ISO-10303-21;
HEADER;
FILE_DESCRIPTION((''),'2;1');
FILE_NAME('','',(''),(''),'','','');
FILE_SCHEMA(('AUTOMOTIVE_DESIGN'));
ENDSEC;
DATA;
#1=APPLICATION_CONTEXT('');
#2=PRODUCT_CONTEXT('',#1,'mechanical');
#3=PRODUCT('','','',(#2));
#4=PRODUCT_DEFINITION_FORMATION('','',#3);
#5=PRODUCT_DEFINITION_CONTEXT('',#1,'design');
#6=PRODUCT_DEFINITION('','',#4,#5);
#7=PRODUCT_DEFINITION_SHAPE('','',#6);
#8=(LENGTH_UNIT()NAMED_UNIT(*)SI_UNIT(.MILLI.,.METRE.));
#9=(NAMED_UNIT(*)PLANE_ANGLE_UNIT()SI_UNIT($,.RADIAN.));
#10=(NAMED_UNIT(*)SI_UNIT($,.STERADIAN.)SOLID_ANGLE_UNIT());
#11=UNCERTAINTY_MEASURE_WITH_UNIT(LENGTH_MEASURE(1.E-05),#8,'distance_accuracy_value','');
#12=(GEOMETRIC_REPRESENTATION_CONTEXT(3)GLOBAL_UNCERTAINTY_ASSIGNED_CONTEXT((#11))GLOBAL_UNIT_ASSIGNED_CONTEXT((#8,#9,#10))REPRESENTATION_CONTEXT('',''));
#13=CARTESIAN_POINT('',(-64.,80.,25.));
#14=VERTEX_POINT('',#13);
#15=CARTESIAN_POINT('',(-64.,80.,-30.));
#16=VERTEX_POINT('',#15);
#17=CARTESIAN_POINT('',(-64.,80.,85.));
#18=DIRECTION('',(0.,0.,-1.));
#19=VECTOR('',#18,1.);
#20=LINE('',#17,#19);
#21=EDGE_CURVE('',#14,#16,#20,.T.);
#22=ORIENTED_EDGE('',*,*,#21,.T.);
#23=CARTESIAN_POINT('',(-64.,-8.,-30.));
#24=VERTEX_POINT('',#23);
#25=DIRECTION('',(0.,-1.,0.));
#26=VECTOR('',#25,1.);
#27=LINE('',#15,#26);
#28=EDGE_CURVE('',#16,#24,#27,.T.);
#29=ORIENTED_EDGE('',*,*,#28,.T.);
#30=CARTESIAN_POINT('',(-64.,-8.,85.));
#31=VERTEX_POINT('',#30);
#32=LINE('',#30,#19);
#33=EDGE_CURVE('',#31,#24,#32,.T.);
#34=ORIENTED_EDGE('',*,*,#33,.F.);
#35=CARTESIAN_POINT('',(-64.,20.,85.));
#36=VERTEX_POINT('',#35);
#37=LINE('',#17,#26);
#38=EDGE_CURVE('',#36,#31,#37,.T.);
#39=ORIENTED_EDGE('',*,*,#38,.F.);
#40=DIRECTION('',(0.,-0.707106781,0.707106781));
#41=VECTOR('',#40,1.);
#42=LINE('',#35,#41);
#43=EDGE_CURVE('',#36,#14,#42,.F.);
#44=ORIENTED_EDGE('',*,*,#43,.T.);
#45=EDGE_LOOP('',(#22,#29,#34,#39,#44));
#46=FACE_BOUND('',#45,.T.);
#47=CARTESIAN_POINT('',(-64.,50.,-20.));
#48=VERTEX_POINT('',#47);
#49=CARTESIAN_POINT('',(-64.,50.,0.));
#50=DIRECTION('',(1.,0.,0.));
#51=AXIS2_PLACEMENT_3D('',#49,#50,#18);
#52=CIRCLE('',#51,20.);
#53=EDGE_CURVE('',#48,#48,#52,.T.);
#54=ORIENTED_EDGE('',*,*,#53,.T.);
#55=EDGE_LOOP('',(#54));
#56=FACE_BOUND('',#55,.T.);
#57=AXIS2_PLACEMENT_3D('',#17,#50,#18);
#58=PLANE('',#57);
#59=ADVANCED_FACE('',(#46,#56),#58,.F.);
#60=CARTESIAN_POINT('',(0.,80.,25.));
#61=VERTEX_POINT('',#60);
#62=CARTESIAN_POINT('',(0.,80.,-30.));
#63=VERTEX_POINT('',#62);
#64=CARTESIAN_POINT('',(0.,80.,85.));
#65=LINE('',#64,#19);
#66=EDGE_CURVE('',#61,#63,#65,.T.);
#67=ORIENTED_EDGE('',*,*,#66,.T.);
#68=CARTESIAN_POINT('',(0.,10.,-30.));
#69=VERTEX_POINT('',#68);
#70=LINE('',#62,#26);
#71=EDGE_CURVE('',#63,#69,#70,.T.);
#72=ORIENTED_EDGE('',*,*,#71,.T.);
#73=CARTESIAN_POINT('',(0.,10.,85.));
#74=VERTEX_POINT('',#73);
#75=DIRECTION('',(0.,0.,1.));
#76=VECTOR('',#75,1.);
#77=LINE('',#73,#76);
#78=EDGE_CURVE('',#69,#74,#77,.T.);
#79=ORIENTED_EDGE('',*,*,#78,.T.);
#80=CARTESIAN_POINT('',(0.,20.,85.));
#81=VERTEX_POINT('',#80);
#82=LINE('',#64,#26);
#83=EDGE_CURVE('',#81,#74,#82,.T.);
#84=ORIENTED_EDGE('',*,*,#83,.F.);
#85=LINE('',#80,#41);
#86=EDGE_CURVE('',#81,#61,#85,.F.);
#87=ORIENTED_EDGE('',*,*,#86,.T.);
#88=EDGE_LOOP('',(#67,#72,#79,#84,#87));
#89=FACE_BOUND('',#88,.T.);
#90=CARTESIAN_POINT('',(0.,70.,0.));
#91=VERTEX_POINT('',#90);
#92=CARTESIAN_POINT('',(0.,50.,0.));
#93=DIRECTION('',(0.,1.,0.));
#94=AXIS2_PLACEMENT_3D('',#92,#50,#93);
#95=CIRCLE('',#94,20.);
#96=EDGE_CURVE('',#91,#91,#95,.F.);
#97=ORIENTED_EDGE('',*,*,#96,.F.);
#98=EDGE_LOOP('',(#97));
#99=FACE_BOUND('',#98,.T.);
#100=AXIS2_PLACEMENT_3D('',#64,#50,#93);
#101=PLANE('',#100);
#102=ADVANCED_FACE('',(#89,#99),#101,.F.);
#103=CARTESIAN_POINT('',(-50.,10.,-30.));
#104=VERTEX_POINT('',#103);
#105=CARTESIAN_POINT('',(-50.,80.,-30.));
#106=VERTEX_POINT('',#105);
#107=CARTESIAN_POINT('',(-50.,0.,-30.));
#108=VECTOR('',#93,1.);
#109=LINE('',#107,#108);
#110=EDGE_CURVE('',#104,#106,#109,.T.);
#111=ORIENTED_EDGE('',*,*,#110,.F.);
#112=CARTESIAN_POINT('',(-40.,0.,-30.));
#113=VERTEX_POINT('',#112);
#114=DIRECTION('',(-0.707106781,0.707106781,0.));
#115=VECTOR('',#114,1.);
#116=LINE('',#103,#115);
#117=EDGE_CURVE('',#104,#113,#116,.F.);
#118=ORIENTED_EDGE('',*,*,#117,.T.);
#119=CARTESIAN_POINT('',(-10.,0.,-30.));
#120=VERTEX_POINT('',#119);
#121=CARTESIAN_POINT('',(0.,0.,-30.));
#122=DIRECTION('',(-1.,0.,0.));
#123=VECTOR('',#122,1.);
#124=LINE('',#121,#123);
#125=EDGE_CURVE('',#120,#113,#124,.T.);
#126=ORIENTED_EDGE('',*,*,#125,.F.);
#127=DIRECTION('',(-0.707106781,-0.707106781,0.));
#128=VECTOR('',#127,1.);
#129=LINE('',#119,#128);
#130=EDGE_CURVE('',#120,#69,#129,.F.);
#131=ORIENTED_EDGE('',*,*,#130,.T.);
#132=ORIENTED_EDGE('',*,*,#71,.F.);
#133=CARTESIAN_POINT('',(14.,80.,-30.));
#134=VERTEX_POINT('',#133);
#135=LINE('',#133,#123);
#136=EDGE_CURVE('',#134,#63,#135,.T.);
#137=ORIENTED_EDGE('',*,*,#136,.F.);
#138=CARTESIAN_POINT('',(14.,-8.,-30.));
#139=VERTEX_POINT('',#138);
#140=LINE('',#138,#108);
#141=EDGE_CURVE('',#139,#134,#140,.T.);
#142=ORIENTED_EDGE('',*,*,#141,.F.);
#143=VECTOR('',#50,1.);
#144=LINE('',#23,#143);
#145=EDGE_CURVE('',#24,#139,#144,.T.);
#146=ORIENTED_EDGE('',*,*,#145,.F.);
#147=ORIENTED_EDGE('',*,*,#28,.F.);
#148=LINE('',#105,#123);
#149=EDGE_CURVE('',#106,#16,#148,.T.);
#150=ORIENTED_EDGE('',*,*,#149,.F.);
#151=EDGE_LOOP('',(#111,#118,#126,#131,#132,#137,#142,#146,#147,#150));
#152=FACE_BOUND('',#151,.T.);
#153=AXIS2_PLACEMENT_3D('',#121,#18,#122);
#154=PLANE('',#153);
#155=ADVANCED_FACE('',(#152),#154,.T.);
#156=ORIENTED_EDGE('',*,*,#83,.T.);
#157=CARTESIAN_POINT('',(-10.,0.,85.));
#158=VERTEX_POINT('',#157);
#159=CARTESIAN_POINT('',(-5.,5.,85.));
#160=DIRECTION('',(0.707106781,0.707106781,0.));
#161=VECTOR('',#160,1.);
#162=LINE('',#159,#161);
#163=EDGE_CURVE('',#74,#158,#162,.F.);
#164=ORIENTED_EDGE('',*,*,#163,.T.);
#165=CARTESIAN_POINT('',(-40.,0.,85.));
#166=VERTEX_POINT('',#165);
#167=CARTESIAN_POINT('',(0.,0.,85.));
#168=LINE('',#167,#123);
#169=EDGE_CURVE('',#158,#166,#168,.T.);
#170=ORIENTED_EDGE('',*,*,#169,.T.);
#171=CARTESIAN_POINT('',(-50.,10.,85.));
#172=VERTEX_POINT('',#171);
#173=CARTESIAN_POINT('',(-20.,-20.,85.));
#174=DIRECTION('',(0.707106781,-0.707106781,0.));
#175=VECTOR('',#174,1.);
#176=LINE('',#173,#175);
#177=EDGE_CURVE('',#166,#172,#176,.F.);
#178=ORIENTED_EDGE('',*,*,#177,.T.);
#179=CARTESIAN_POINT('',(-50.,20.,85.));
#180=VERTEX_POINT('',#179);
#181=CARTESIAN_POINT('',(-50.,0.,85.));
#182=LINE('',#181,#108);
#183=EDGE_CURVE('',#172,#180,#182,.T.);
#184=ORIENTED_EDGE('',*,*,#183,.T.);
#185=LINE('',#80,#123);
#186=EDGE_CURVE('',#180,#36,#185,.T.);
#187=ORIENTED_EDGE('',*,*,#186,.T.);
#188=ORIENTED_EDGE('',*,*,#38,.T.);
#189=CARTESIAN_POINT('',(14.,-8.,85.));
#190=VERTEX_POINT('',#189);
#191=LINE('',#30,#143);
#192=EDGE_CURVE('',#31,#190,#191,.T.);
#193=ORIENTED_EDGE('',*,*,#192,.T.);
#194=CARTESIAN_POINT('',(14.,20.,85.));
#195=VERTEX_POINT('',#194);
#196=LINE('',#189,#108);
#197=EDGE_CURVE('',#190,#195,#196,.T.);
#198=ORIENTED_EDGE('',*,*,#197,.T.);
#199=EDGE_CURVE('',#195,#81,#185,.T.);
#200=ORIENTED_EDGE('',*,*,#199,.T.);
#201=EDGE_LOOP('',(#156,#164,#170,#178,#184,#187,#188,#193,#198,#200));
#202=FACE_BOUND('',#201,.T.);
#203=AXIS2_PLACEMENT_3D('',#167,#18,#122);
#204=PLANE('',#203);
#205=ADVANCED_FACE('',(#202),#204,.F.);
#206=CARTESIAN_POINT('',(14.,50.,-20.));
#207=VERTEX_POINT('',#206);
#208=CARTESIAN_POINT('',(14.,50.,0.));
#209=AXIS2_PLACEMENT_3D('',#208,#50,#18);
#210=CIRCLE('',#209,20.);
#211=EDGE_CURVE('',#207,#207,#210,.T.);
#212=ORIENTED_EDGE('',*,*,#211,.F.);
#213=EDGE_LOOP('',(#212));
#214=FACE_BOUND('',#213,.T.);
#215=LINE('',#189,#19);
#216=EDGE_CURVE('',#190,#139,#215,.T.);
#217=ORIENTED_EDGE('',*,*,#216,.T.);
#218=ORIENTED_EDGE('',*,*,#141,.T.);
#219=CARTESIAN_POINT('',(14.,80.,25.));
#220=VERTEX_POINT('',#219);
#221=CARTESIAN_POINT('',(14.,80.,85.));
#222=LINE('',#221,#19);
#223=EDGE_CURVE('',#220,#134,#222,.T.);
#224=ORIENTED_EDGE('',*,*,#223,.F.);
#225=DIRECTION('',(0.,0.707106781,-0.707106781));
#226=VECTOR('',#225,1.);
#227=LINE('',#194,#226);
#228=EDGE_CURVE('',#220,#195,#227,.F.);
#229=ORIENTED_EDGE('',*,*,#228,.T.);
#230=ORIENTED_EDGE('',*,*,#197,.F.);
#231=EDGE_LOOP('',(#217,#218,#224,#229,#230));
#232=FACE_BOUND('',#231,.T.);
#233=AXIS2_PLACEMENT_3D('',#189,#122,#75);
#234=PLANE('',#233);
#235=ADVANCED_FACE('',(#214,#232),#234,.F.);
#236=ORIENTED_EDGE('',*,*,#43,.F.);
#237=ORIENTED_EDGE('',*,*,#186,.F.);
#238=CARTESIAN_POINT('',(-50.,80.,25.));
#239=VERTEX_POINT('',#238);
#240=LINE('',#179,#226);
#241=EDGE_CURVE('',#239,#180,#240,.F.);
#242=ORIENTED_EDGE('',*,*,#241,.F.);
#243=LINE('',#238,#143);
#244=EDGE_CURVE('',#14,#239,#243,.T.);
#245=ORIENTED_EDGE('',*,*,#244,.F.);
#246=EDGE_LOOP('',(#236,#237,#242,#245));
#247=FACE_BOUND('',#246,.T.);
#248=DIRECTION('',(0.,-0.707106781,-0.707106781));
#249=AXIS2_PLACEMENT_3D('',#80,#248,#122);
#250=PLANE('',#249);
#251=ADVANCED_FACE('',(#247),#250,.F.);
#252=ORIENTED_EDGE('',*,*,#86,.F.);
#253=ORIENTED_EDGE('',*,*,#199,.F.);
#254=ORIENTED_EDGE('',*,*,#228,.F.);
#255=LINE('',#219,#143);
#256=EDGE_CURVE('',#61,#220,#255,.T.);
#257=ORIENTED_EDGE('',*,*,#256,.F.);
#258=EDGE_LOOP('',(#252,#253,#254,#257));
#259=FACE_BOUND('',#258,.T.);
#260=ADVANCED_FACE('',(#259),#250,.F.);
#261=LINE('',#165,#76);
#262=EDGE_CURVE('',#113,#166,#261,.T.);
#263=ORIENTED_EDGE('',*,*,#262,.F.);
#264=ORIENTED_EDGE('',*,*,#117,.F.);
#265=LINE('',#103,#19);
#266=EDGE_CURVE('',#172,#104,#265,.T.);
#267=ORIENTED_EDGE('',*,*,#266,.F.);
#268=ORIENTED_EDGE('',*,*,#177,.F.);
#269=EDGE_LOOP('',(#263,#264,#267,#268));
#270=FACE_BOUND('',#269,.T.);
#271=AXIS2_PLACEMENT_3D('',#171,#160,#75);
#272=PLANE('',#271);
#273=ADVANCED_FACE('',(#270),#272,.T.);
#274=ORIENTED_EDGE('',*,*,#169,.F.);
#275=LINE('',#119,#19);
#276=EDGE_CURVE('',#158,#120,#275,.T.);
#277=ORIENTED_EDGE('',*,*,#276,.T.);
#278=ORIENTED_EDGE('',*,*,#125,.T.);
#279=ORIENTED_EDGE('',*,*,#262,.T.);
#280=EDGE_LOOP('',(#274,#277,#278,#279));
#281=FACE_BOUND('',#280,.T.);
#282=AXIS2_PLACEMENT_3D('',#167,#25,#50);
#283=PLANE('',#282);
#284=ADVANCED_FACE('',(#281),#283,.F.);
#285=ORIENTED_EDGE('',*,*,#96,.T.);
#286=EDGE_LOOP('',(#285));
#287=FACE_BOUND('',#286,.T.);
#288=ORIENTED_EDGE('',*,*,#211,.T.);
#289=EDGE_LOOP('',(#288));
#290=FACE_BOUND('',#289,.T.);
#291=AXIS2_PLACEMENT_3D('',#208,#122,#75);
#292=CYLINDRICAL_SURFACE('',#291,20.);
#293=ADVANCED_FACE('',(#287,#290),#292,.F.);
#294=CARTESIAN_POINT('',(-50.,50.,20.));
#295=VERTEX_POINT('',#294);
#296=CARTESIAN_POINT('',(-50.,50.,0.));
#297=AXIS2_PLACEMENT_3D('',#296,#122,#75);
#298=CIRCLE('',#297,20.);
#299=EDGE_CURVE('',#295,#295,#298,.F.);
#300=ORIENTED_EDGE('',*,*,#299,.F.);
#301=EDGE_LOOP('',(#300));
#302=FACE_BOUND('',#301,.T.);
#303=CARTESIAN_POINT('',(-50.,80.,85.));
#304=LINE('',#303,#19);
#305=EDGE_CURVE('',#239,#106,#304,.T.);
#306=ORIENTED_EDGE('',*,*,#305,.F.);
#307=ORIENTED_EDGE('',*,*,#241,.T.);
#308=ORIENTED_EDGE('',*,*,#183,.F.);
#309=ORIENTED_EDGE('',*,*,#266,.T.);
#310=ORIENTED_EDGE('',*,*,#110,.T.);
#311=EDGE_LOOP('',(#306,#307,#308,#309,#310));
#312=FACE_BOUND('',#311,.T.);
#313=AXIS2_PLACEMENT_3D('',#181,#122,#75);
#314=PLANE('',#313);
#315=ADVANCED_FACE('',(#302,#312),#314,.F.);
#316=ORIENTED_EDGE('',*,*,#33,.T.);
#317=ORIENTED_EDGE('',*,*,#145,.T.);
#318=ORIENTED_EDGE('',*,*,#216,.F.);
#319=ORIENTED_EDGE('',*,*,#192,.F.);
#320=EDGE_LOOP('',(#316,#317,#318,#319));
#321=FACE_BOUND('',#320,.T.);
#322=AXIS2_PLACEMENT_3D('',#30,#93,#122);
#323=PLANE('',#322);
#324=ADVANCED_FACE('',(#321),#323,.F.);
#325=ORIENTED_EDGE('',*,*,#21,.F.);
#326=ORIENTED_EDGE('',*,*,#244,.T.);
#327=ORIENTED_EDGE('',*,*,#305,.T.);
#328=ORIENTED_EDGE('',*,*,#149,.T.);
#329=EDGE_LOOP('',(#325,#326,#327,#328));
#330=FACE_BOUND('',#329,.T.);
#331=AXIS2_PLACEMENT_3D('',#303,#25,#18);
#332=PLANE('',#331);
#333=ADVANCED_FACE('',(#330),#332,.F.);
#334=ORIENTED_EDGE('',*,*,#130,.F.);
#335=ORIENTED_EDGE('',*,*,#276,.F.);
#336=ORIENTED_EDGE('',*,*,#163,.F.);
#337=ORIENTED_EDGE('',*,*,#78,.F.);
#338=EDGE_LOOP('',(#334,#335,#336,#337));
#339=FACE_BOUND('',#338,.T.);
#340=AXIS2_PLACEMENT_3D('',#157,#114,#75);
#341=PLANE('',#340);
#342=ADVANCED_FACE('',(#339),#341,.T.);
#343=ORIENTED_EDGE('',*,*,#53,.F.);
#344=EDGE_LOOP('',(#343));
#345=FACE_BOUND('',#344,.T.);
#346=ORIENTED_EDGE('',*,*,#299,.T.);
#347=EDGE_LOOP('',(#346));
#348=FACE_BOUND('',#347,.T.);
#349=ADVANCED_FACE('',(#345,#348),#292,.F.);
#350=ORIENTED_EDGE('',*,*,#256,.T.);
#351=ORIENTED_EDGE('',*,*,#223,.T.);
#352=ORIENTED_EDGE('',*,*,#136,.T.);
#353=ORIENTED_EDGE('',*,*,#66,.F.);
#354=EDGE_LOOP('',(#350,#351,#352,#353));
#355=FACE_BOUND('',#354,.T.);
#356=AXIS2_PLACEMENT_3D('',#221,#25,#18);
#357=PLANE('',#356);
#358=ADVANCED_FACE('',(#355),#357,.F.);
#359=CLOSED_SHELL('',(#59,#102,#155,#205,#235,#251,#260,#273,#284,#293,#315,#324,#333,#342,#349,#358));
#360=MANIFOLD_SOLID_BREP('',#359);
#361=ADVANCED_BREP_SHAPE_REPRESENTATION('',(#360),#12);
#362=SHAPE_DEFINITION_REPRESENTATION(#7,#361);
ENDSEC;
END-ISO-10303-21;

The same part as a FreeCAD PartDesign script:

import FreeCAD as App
import Part
import Sketcher


def edges_at(feature, points):
    """Names of the edges that pass closest to the given points."""
    edges = feature.Shape.Edges
    near = lambda p: min(range(len(edges)), key=lambda i: edges[i].distToShape(Part.Vertex(*p))[0])
    return sorted({f"Edge{near(p) + 1}" for p in points})

doc = App.newDocument("Part")
body = doc.addObject("PartDesign::Body", "Body")

sketch1 = doc.addObject("Sketcher::SketchObject", "Sketch")
body.addObject(sketch1)
sketch1.AttachmentSupport = (doc.XY_Plane, [""])
sketch1.MapMode = "FlatFace"
sketch1.addGeometry([
    Part.LineSegment(App.Vector(0, 0, 0), App.Vector(-50, 0, 0)),
    Part.LineSegment(App.Vector(-50, 0, 0), App.Vector(-50, 80, 0)),
    Part.LineSegment(App.Vector(-50, 80, 0), App.Vector(-64, 80, 0)),
    Part.LineSegment(App.Vector(-64, 80, 0), App.Vector(-64, -8, 0)),
    Part.LineSegment(App.Vector(-64, -8, 0), App.Vector(14, -8, 0)),
    Part.LineSegment(App.Vector(14, -8, 0), App.Vector(14, 80, 0)),
    Part.LineSegment(App.Vector(14, 80, 0), App.Vector(0, 80, 0)),
    Part.LineSegment(App.Vector(0, 80, 0), App.Vector(0, 0, 0)),
], False)
sketch1.addConstraint([
    Sketcher.Constraint("Coincident", 0, 2, 1, 1),
    Sketcher.Constraint("Coincident", 1, 2, 2, 1),
    Sketcher.Constraint("Coincident", 2, 2, 3, 1),
    Sketcher.Constraint("Coincident", 3, 2, 4, 1),
    Sketcher.Constraint("Coincident", 4, 2, 5, 1),
    Sketcher.Constraint("Coincident", 5, 2, 6, 1),
    Sketcher.Constraint("Coincident", 6, 2, 7, 1),
    Sketcher.Constraint("Coincident", 7, 2, 0, 1),
    Sketcher.Constraint("Horizontal", 0),
    Sketcher.Constraint("Vertical", 1),
    Sketcher.Constraint("Horizontal", 2),
    Sketcher.Constraint("Vertical", 3),
    Sketcher.Constraint("Horizontal", 4),
    Sketcher.Constraint("Vertical", 5),
    Sketcher.Constraint("Horizontal", 6),
    Sketcher.Constraint("Vertical", 7),
    Sketcher.Constraint("Coincident", 7, 2, -1, 1),
    Sketcher.Constraint("Horizontal", 2, 2, 5, 2),
    Sketcher.Constraint("Equal", 2, 6),
    Sketcher.Constraint("DistanceX", 0, 2, 0, 1, 50.0),
    Sketcher.Constraint("DistanceX", 2, 2, 2, 1, 14.0),
    Sketcher.Constraint("DistanceY", 1, 1, 1, 2, 80.0),
    Sketcher.Constraint("DistanceY", 3, 2, 3, 1, 88.0),
])
pad1 = doc.addObject("PartDesign::Pad", "Pad")
body.addObject(pad1)
pad1.Profile = sketch1
pad1.Type = "TwoLengths"
pad1.Length = 85
pad1.Length2 = 30

sketch2 = doc.addObject("Sketcher::SketchObject", "Sketch001")
body.addObject(sketch2)
sketch2.AttachmentSupport = (doc.YZ_Plane, [""])
sketch2.MapMode = "FlatFace"
sketch2.addGeometry(Part.Circle(App.Vector(50, 0, 0), App.Vector(0, 0, 1), 20), False)
sketch2.addConstraint([
    Sketcher.Constraint("PointOnObject", 0, 3, -1),
    Sketcher.Constraint("Diameter", 0, 40.0),
    Sketcher.Constraint("DistanceX", -1, 1, 0, 3, 50.0),
])
pocket1 = doc.addObject("PartDesign::Pocket", "Pocket")
body.addObject(pocket1)
pocket1.Profile = sketch2
pocket1.Type = "ThroughAll"
pocket1.Midplane = True
doc.recompute()

chamfer = doc.addObject("PartDesign::Chamfer", "Chamfer")
body.addObject(chamfer)
chamfer.Base = (pocket1, edges_at(pocket1, [(-50, 0, 27.5), (0, 0, 27.5)]))
chamfer.Size = 10
doc.recompute()

chamfer2 = doc.addObject("PartDesign::Chamfer", "Chamfer001")
body.addObject(chamfer2)
chamfer2.Base = (chamfer, edges_at(chamfer, [(-57, 80, 85), (7, 80, 85)]))
chamfer2.Size = 60

doc.recompute()
